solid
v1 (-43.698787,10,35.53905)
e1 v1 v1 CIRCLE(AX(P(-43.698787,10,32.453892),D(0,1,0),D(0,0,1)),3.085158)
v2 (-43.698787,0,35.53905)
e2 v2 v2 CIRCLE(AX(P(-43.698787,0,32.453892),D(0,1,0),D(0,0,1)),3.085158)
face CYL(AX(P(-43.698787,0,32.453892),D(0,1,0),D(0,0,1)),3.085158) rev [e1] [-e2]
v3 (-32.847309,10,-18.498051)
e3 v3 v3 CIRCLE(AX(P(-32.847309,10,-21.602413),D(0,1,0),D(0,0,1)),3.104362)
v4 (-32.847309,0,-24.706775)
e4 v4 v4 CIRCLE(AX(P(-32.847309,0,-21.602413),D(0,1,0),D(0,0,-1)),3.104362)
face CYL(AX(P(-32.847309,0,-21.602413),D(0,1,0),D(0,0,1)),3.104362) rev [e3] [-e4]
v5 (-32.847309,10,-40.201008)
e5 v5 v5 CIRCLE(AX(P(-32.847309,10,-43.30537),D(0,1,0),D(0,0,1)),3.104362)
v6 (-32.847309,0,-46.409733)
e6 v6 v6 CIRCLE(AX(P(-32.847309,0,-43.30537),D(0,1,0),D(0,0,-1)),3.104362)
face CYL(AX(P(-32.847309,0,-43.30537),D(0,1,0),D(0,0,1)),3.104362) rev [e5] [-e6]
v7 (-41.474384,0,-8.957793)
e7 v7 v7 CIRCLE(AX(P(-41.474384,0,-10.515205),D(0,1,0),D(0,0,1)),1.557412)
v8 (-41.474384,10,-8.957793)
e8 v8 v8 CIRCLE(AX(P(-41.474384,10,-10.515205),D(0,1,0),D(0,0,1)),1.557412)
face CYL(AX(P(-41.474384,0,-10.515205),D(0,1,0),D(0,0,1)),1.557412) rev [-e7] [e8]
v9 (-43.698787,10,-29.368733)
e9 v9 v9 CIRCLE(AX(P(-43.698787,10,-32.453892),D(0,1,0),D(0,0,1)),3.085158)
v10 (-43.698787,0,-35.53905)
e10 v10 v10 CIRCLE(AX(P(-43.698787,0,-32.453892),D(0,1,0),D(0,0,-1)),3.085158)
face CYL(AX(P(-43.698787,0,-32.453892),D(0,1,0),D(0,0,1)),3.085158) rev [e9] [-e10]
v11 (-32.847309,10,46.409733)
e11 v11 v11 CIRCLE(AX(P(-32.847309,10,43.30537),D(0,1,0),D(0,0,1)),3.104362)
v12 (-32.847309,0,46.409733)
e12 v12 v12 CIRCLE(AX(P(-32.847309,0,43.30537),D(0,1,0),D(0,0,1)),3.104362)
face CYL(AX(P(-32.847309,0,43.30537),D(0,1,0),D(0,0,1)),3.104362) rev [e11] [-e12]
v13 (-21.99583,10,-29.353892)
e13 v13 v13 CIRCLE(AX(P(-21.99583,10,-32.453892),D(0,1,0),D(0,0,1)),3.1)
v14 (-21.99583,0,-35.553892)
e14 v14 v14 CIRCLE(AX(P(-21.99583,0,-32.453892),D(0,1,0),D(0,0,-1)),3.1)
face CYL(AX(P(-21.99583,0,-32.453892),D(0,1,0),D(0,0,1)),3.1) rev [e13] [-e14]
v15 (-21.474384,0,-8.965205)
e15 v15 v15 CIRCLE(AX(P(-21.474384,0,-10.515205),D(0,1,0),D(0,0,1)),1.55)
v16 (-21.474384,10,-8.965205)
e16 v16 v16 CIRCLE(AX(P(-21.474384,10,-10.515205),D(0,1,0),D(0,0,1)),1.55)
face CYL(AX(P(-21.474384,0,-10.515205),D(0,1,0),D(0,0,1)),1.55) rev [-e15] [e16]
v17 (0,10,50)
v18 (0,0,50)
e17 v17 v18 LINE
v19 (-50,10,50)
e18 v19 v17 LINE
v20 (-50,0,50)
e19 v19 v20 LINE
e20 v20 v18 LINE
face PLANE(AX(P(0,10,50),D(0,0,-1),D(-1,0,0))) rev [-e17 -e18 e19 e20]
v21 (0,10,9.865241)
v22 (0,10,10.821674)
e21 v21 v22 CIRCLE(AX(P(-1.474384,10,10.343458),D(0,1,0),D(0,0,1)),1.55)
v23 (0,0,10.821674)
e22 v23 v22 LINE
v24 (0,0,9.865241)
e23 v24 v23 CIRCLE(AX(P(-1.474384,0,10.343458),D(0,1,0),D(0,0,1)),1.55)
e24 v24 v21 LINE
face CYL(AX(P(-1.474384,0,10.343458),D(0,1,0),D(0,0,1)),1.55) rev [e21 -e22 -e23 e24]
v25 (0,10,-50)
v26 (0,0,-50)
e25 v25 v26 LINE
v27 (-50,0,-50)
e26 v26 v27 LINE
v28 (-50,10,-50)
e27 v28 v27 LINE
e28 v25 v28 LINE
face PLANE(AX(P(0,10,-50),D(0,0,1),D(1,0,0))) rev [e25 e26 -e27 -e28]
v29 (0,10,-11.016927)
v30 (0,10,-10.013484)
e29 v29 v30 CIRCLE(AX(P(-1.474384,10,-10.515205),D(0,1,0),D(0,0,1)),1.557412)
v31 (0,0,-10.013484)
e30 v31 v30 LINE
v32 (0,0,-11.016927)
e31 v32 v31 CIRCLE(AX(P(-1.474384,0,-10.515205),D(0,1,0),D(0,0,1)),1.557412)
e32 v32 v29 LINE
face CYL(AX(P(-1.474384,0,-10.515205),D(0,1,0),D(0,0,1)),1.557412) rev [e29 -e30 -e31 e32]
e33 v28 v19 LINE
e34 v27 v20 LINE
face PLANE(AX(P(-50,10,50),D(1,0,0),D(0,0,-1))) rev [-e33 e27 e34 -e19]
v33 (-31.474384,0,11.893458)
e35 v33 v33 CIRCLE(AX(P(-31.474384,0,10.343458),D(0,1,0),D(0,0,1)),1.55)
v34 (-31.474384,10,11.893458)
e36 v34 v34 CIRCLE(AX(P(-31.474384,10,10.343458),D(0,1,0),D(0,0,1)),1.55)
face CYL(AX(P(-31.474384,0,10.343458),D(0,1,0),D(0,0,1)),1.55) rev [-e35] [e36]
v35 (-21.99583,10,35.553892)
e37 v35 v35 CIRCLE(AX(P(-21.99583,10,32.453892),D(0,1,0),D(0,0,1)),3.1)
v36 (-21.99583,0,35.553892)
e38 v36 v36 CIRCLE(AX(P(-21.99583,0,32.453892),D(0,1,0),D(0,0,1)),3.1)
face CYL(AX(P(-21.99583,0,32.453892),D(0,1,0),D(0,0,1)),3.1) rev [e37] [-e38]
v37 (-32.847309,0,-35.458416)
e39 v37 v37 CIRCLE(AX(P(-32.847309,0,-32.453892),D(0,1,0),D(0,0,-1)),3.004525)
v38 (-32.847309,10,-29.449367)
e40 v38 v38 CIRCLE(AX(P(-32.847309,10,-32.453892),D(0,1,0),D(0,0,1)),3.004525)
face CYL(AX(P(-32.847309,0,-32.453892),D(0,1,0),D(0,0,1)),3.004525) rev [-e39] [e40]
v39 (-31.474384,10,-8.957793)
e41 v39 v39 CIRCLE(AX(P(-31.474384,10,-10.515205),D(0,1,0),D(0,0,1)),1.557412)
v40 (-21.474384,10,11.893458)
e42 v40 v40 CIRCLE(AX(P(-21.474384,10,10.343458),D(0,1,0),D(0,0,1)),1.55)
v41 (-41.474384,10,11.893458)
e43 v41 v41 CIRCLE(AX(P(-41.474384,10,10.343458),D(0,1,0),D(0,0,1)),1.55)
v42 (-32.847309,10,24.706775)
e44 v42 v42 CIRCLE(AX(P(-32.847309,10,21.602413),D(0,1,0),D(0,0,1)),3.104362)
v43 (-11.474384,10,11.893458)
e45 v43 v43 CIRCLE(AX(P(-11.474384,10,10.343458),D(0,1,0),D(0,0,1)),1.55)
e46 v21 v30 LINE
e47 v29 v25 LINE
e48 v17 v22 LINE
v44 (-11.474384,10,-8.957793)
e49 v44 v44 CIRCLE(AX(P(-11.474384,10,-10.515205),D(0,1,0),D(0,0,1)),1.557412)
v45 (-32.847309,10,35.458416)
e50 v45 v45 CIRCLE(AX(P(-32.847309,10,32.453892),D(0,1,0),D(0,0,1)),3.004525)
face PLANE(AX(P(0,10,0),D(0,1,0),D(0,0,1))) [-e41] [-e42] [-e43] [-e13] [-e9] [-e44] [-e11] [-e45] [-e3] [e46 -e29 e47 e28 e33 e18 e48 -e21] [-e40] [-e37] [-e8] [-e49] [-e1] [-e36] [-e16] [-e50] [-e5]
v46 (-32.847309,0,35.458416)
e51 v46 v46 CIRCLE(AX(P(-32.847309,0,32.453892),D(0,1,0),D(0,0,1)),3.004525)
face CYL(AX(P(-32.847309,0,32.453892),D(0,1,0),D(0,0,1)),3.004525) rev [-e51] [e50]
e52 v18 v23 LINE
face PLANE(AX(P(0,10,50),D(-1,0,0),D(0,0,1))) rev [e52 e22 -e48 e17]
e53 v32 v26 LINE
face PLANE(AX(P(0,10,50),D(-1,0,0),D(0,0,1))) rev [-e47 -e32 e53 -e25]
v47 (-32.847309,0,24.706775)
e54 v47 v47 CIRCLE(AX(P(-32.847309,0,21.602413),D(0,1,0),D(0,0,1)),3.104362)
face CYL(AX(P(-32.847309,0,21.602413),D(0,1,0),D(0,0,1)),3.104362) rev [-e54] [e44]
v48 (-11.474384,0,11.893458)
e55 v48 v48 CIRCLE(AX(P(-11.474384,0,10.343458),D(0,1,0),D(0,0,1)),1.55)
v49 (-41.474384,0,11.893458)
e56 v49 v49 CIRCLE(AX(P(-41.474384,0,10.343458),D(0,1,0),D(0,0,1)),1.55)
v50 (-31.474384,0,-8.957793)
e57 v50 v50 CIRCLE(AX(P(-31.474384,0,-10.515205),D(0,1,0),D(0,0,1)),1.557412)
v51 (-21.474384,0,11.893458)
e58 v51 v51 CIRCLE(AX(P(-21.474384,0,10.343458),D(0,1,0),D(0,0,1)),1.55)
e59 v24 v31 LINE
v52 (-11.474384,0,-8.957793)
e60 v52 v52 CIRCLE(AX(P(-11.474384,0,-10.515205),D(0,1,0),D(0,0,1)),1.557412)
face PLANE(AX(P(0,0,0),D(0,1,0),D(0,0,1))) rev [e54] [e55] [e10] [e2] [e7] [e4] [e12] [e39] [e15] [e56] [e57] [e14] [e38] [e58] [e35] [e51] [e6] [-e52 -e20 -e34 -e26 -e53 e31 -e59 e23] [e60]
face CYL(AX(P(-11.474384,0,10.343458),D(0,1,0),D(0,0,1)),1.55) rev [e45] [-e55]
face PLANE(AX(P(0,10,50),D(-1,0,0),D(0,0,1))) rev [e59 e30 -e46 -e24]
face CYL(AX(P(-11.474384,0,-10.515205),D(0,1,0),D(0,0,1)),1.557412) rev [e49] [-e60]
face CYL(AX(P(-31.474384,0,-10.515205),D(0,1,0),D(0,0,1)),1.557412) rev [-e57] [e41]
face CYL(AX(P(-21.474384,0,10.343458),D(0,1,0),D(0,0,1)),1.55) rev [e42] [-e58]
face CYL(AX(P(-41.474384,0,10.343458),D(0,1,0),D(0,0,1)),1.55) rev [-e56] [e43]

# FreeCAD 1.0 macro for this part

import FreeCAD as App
import Part
import Sketcher
from FreeCAD import Vector

doc = App.newDocument("Part")
params = doc.addObject("Spreadsheet::Sheet", "Params")
for row, (alias, value) in enumerate([
    ("sketch1_width", "50 mm"),
    ("sketch1_height", "100 mm"),
    ("pad1_length", "10 mm"),
    ("sketch2_diameter", "6.2 mm"),
    ("sketch3_diameter", "3.1 mm"),
], start=1):
    params.set(f"A{row}", alias)
    params.set(f"B{row}", "=" + value)
    params.setAlias(f"B{row}", alias)

body = doc.addObject("PartDesign::Body", "Body")

sketch1 = doc.addObject("Sketcher::SketchObject", "Sketch")
body.addObject(sketch1)
sketch1.AttachmentSupport = (doc.XZ_Plane, [""])
sketch1.MapMode = "FlatFace"
sketch1.addGeometry(Part.LineSegment(Vector(-50, -50, 0), Vector(-50, 50, 0)), False)
sketch1.addGeometry(Part.LineSegment(Vector(-50, 50, 0), Vector(0, 50, 0)), False)
sketch1.addGeometry(Part.LineSegment(Vector(0, 50, 0), Vector(0, -50, 0)), False)
sketch1.addGeometry(Part.LineSegment(Vector(0, -50, 0), Vector(-50, -50, 0)), False)
sketch1.addConstraint(Sketcher.Constraint("Coincident", 0, 2, 1, 1))
sketch1.addConstraint(Sketcher.Constraint("Coincident", 1, 2, 2, 1))
sketch1.addConstraint(Sketcher.Constraint("Coincident", 2, 2, 3, 1))
sketch1.addConstraint(Sketcher.Constraint("Coincident", 3, 2, 0, 1))
sketch1.addConstraint(Sketcher.Constraint("Vertical", 0))
sketch1.addConstraint(Sketcher.Constraint("Horizontal", 1))
sketch1.addConstraint(Sketcher.Constraint("Vertical", 2))
sketch1.addConstraint(Sketcher.Constraint("Horizontal", 3))
sketch1.addConstraint(Sketcher.Constraint("Symmetric", 1, 2, 2, 2, -1, 1))
sketch1.addConstraint(Sketcher.Constraint("DistanceX", 1, 1, 1, 2, 50.0))
sketch1.addConstraint(Sketcher.Constraint("DistanceY", 0, 1, 0, 2, 100.0))
sketch1.setExpression("Constraints[9]", "Params.sketch1_width")
sketch1.setExpression("Constraints[10]", "Params.sketch1_height")
pad1 = doc.addObject("PartDesign::Pad", "Pad")
body.addObject(pad1)
pad1.Profile = sketch1
pad1.setExpression("Length", "Params.pad1_length")
pad1.Reversed = True

sketch2 = doc.addObject("Sketcher::SketchObject", "Sketch001")
body.addObject(sketch2)
sketch2.AttachmentSupport = (doc.XZ_Plane, [""])
sketch2.MapMode = "FlatFace"
sketch2.AttachmentOffset = App.Placement(Vector(0, 0, -10), App.Rotation())
sketch2.addGeometry(Part.Circle(Vector(-32.8, 43.3, 0), Vector(0, 0, 1), 3.1), False)
sketch2.addGeometry(Part.Circle(Vector(-43.7, 32.5, 0), Vector(0, 0, 1), 3.1), False)
sketch2.addGeometry(Part.Circle(Vector(-22, 32.5, 0), Vector(0, 0, 1), 3.1), False)
sketch2.addGeometry(Part.Circle(Vector(-32.8, 21.6, 0), Vector(0, 0, 1), 3.1), False)
sketch2.addGeometry(Part.Circle(Vector(-32.8, 32.5, 0), Vector(0, 0, 1), 3), False)
sketch2.addGeometry(Part.Circle(Vector(-32.8, -32.5, 0), Vector(0, 0, 1), 3), False)
sketch2.addGeometry(Part.Circle(Vector(-32.8, -21.6, 0), Vector(0, 0, 1), 3.1), False)
sketch2.addGeometry(Part.Circle(Vector(-22, -32.5, 0), Vector(0, 0, 1), 3.1), False)
sketch2.addGeometry(Part.Circle(Vector(-43.7, -32.5, 0), Vector(0, 0, 1), 3.1), False)
sketch2.addGeometry(Part.Circle(Vector(-32.8, -43.3, 0), Vector(0, 0, 1), 3.1), False)
sketch2.addConstraint(Sketcher.Constraint("Equal", 0, 3))
sketch2.addConstraint(Sketcher.Constraint("Equal", 4, 5))
sketch2.addConstraint(Sketcher.Constraint("Equal", 3, 6))
sketch2.addConstraint(Sketcher.Constraint("Equal", 2, 7))
sketch2.addConstraint(Sketcher.Constraint("Equal", 1, 8))
sketch2.addConstraint(Sketcher.Constraint("Equal", 6, 9))
sketch2.addConstraint(Sketcher.Constraint("Symmetric", 4, 3, 5, 3, -1))
sketch2.addConstraint(Sketcher.Constraint("Symmetric", 3, 3, 6, 3, -1))
sketch2.addConstraint(Sketcher.Constraint("Symmetric", 2, 3, 7, 3, -1))
sketch2.addConstraint(Sketcher.Constraint("Symmetric", 1, 3, 8, 3, -1))
sketch2.addConstraint(Sketcher.Constraint("Symmetric", 0, 3, 9, 3, -1))
sketch2.addConstraint(Sketcher.Constraint("Horizontal", 1, 3, 2, 3))
sketch2.addConstraint(Sketcher.Constraint("Horizontal", 2, 3, 4, 3))
sketch2.addConstraint(Sketcher.Constraint("Vertical", 0, 3, 3, 3))
sketch2.addConstraint(Sketcher.Constraint("Vertical", 3, 3, 4, 3))
sketch2.addConstraint(Sketcher.Constraint("Diameter", 2, 6.2))
sketch2.addConstraint(Sketcher.Constraint("Diameter", 4, 6.009049))
sketch2.addConstraint(Sketcher.Constraint("Diameter", 0, 6.208724))
sketch2.addConstraint(Sketcher.Constraint("Diameter", 1, 6.170317))
sketch2.addConstraint(Sketcher.Constraint("DistanceX", 0, 3, -1, 1, 32.847309))
sketch2.addConstraint(Sketcher.Constraint("DistanceY", -1, 1, 0, 3, 43.30537))
sketch2.addConstraint(Sketcher.Constraint("DistanceY", -1, 1, 1, 3, 32.453892))
sketch2.addConstraint(Sketcher.Constraint("DistanceX", 2, 3, -1, 1, 21.99583))
sketch2.addConstraint(Sketcher.Constraint("DistanceX", 1, 3, 0, 3, 10.851479))
sketch2.addConstraint(Sketcher.Constraint("DistanceY", 3, 3, 2, 3, 10.851479))
sketch2.setExpression("Constraints[15]", "Params.sketch2_diameter")
pocket1 = doc.addObject("PartDesign::Pocket", "Pocket")
body.addObject(pocket1)
pocket1.Profile = sketch2
pocket1.Type = "ThroughAll"
pocket1.Midplane = True

sketch3 = doc.addObject("Sketcher::SketchObject", "Sketch002")
body.addObject(sketch3)
sketch3.AttachmentSupport = (doc.XZ_Plane, [""])
sketch3.MapMode = "FlatFace"
sketch3.AttachmentOffset = App.Placement(Vector(0, 0, -10), App.Rotation())
sketch3.addGeometry(Part.Circle(Vector(-41.5, -10.5, 0), Vector(0, 0, 1), 1.6), False)
sketch3.addGeometry(Part.Circle(Vector(-41.5, 10.3, 0), Vector(0, 0, 1), 1.6), False)
sketch3.addGeometry(Part.Circle(Vector(-31.5, 10.3, 0), Vector(0, 0, 1), 1.6), False)
sketch3.addGeometry(Part.Circle(Vector(-31.5, -10.5, 0), Vector(0, 0, 1), 1.6), False)
sketch3.addGeometry(Part.Circle(Vector(-21.5, -10.5, 0), Vector(0, 0, 1), 1.6), False)
sketch3.addGeometry(Part.Circle(Vector(-21.5, 10.3, 0), Vector(0, 0, 1), 1.6), False)
sketch3.addGeometry(Part.Circle(Vector(-11.5, 10.3, 0), Vector(0, 0, 1), 1.6), False)
sketch3.addGeometry(Part.Circle(Vector(-1.5, 10.3, 0), Vector(0, 0, 1), 1.6), False)
sketch3.addGeometry(Part.Circle(Vector(-11.5, -10.5, 0), Vector(0, 0, 1), 1.6), False)
sketch3.addGeometry(Part.Circle(Vector(-1.5, -10.5, 0), Vector(0, 0, 1), 1.6), False)
sketch3.addConstraint(Sketcher.Constraint("Equal", 1, 2))
sketch3.addConstraint(Sketcher.Constraint("Equal", 0, 3))
sketch3.addConstraint(Sketcher.Constraint("Equal", 2, 4))
sketch3.addConstraint(Sketcher.Constraint("Equal", 4, 5))
sketch3.addConstraint(Sketcher.Constraint("Equal", 5, 6))
sketch3.addConstraint(Sketcher.Constraint("Equal", 6, 7))
sketch3.addConstraint(Sketcher.Constraint("Equal", 3, 8))
sketch3.addConstraint(Sketcher.Constraint("Equal", 8, 9))
sketch3.addConstraint(Sketcher.Constraint("Horizontal", 1, 3, 2, 3))
sketch3.addConstraint(Sketcher.Constraint("Horizontal", 0, 3, 3, 3))
sketch3.addConstraint(Sketcher.Constraint("Horizontal", 3, 3, 4, 3))
sketch3.addConstraint(Sketcher.Constraint("Horizontal", 2, 3, 5, 3))
sketch3.addConstraint(Sketcher.Constraint("Horizontal", 5, 3, 6, 3))
sketch3.addConstraint(Sketcher.Constraint("Horizontal", 6, 3, 7, 3))
sketch3.addConstraint(Sketcher.Constraint("Horizontal", 4, 3, 8, 3))
sketch3.addConstraint(Sketcher.Constraint("Horizontal", 8, 3, 9, 3))
sketch3.addConstraint(Sketcher.Constraint("Vertical", 0, 3, 1, 3))
sketch3.addConstraint(Sketcher.Constraint("Vertical", 2, 3, 3, 3))
sketch3.addConstraint(Sketcher.Constraint("Vertical", 4, 3, 5, 3))
sketch3.addConstraint(Sketcher.Constraint("Vertical", 6, 3, 8, 3))
sketch3.addConstraint(Sketcher.Constraint("Vertical", 7, 3, 9, 3))
sketch3.addConstraint(Sketcher.Constraint("Diameter", 1, 3.1))
sketch3.addConstraint(Sketcher.Constraint("DistanceX", 1, 3, 2, 3, 10.0))
sketch3.addConstraint(Sketcher.Constraint("DistanceX", 3, 3, 4, 3, 10.0))
sketch3.addConstraint(Sketcher.Constraint("DistanceX", 5, 3, 6, 3, 10.0))
sketch3.addConstraint(Sketcher.Constraint("DistanceX", 6, 3, 7, 3, 10.0))
sketch3.addConstraint(Sketcher.Constraint("Diameter", 0, 3.114825))
sketch3.addConstraint(Sketcher.Constraint("DistanceX", 0, 3, -1, 1, 41.474384))
sketch3.addConstraint(Sketcher.Constraint("DistanceY", 0, 3, -1, 1, 10.515205))
sketch3.addConstraint(Sketcher.Constraint("DistanceY", -1, 1, 1, 3, 10.343458))
sketch3.setExpression("Constraints[21]", "Params.sketch3_diameter")
pocket2 = doc.addObject("PartDesign::Pocket", "Pocket001")
body.addObject(pocket2)
pocket2.Profile = sketch3
pocket2.Type = "ThroughAll"
pocket2.Midplane = True

doc.recompute()
